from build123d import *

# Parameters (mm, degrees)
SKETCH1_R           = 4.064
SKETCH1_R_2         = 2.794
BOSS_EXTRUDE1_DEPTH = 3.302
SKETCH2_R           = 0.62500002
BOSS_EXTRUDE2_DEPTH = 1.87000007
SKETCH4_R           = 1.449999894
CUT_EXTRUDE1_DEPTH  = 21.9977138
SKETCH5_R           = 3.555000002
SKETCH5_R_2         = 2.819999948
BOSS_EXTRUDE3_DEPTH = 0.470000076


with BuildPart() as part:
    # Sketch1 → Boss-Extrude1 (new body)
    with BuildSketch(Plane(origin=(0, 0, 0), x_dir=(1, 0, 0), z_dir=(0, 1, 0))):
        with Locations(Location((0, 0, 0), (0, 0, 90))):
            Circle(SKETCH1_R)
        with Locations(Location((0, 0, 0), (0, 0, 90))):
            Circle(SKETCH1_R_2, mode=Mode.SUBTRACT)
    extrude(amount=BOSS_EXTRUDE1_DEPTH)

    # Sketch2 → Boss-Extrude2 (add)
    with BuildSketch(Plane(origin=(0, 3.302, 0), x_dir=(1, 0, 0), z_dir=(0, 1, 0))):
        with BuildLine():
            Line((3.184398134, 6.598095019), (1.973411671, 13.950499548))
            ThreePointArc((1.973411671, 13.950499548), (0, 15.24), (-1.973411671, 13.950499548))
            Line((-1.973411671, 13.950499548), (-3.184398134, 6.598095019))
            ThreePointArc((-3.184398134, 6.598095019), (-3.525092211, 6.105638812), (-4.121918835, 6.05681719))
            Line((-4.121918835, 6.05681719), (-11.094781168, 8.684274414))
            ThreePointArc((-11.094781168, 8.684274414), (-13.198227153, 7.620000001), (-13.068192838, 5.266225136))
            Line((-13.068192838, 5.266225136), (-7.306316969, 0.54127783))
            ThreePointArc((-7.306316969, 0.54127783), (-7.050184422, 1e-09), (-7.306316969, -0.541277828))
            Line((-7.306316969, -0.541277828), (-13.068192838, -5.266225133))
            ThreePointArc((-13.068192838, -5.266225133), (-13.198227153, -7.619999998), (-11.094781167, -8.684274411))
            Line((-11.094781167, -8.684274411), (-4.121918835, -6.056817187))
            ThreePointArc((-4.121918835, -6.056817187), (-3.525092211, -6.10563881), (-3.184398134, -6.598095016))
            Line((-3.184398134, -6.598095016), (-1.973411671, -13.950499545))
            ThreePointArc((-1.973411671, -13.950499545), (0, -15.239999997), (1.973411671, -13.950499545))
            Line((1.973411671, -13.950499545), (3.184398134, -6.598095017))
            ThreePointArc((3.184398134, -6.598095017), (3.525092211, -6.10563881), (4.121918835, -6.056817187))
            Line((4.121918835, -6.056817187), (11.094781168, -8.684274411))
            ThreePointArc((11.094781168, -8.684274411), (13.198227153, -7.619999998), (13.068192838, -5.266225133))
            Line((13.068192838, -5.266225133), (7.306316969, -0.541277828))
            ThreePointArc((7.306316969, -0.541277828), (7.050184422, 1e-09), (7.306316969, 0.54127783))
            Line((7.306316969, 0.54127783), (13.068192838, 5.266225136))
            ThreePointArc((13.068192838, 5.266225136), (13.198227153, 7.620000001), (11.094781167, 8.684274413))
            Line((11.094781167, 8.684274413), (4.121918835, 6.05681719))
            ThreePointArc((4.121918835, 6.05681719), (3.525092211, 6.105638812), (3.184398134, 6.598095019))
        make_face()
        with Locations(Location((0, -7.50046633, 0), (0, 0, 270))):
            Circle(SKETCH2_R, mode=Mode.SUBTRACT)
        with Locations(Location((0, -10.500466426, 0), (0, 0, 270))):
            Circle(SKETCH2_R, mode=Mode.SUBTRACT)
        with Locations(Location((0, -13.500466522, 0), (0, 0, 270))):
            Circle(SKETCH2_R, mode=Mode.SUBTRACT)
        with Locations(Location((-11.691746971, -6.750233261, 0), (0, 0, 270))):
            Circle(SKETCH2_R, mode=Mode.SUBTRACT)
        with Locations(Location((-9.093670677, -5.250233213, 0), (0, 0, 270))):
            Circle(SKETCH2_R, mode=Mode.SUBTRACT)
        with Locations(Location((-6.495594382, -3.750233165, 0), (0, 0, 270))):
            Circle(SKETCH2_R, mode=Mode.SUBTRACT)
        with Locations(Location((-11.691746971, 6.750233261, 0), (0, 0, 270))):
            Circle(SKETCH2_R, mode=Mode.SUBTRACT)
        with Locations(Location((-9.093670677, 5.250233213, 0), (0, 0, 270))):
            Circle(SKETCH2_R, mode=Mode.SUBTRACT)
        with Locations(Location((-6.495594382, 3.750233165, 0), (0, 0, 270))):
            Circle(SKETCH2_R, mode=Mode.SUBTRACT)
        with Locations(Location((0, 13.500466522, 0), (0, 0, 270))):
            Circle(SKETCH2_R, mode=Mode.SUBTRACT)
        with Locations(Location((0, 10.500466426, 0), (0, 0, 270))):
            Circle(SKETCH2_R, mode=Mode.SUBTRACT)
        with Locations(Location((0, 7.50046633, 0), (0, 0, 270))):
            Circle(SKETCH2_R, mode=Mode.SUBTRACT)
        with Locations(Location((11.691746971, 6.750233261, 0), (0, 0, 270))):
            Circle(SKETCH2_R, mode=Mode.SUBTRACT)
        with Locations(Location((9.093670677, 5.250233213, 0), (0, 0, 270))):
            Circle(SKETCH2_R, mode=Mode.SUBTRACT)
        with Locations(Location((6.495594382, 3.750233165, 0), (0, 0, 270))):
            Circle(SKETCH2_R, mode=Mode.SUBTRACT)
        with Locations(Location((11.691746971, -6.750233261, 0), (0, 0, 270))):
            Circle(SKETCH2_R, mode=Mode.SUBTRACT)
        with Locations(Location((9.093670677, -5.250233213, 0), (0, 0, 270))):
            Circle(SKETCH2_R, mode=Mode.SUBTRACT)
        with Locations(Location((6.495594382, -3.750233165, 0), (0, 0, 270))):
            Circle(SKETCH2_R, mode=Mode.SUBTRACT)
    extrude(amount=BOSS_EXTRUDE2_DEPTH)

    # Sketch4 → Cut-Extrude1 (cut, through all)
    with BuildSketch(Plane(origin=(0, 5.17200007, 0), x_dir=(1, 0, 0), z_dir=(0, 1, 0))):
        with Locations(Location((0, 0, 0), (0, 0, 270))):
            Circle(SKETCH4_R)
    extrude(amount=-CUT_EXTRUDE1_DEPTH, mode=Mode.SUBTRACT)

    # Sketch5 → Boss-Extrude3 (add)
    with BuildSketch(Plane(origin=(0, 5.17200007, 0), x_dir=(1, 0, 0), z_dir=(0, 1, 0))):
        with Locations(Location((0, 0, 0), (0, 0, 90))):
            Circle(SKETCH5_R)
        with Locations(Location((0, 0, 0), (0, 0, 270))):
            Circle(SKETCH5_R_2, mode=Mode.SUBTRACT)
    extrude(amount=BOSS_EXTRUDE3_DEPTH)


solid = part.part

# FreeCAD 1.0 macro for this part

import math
import FreeCAD as App
import Part
import Sketcher

V = App.Vector
Q = App.Units.Quantity

doc = App.newDocument("Part")
body = doc.addObject("PartDesign::Body", "Body")

# Sketch on XZ plane
sketch1 = body.newObject("Sketcher::SketchObject", "Sketch")
sketch1.AttachmentSupport = (doc.getObject("XZ_Plane"), [""])
sketch1.MapMode = "FlatFace"
sketch1.addGeometry([
    Part.Circle(V(0, 0, 0), V(0, 0, 1), 4.064),
    Part.Circle(V(0, 0, 0), V(0, 0, 1), 2.794),
], False)
sketch1.addConstraint([
    Sketcher.Constraint("Coincident", 0, 3, -1, 1),
    Sketcher.Constraint("Coincident", 1, 3, -1, 1),
    Sketcher.Constraint("Diameter", 0, Q("0.32 in")),
    Sketcher.Constraint("Diameter", 1, Q("0.22 in")),
])
pad1 = body.newObject("PartDesign::Pad", "Pad")
pad1.Profile = sketch1
pad1.Length = Q("0.13 in")
pad1.Reversed = True

# Sketch on XZ plane
sketch2 = body.newObject("Sketcher::SketchObject", "Sketch001")
sketch2.AttachmentSupport = (doc.getObject("XZ_Plane"), [""])
sketch2.MapMode = "FlatFace"
sketch2.AttachmentOffset = App.Placement(V(0, 0, -0.13 * 25.4), App.Rotation())
sketch2.addGeometry([
    Part.LineSegment(V(3.184398, -6.598095, 0), V(1.973412, -13.9505, 0)),  # 0
    Part.ArcOfCircle(Part.Circle(V(0, -13.085226, 0), V(0, 0, 1), 2.154774), math.radians(-156.324183), math.radians(-23.675817)),  # 1
    Part.LineSegment(V(-1.973412, -13.9505, 0), V(-3.184398, -6.598095, 0)),  # 2
    Part.ArcOfCircle(Part.Circle(V(-3.875092, -6.711857, 0), V(0, 0, 1), 0.7), math.radians(9.352996), math.radians(110.647004)),  # 3
    Part.LineSegment(V(-4.121919, -6.056817, 0), V(-11.094781, -8.684274, 0)),  # 4
    Part.ArcOfCircle(Part.Circle(V(-11.332138, -6.542613, 0), V(0, 0, 1), 2.154774), math.radians(143.675817), math.radians(276.324183)),  # 5
    Part.LineSegment(V(-13.068193, -5.266225, 0), V(-7.306317, -0.541278, 0)),  # 6
    Part.ArcOfCircle(Part.Circle(V(-7.750184, 0, 0), V(0, 0, 1), 0.7), math.radians(-50.647004), math.radians(50.647004)),  # 7
    Part.LineSegment(V(-7.306317, 0.541278, 0), V(-13.068193, 5.266225, 0)),  # 8
    Part.ArcOfCircle(Part.Circle(V(-11.332138, 6.542613, 0), V(0, 0, 1), 2.154774), math.radians(83.675817), math.radians(216.324183)),  # 9
    Part.LineSegment(V(-11.094781, 8.684274, 0), V(-4.121919, 6.056817, 0)),  # 10
    Part.ArcOfCircle(Part.Circle(V(-3.875092, 6.711857, 0), V(0, 0, 1), 0.7), math.radians(-110.647004), math.radians(-9.352996)),  # 11
    Part.LineSegment(V(-3.184398, 6.598095, 0), V(-1.973412, 13.9505, 0)),  # 12
    Part.ArcOfCircle(Part.Circle(V(0, 13.085226, 0), V(0, 0, 1), 2.154774), math.radians(23.675817), math.radians(156.324183)),  # 13
    Part.LineSegment(V(1.973412, 13.9505, 0), V(3.184398, 6.598095, 0)),  # 14
    Part.ArcOfCircle(Part.Circle(V(3.875092, 6.711857, 0), V(0, 0, 1), 0.7), math.radians(-170.647004), math.radians(-69.352996)),  # 15
    Part.LineSegment(V(4.121919, 6.056817, 0), V(11.094781, 8.684274, 0)),  # 16
    Part.ArcOfCircle(Part.Circle(V(11.332138, 6.542613, 0), V(0, 0, 1), 2.154774), math.radians(-36.324183), math.radians(96.324183)),  # 17
    Part.LineSegment(V(13.068193, 5.266225, 0), V(7.306317, 0.541278, 0)),  # 18
    Part.ArcOfCircle(Part.Circle(V(7.750184, 0, 0), V(0, 0, 1), 0.7), math.radians(129.352996), math.radians(230.647004)),  # 19
    Part.LineSegment(V(7.306317, -0.541278, 0), V(13.068193, -5.266225, 0)),  # 20
    Part.ArcOfCircle(Part.Circle(V(11.332138, -6.542613, 0), V(0, 0, 1), 2.154774), math.radians(-96.324183), math.radians(36.324183)),  # 21
    Part.LineSegment(V(11.094781, -8.684274, 0), V(4.121919, -6.056817, 0)),  # 22
    Part.ArcOfCircle(Part.Circle(V(3.875092, -6.711857, 0), V(0, 0, 1), 0.7), math.radians(69.352996), math.radians(170.647004)),  # 23
    Part.Circle(V(-11.691747, 6.750233, 0), V(0, 0, 1), 0.625),  # 24
    Part.Circle(V(-9.093671, 5.250233, 0), V(0, 0, 1), 0.625),  # 25
    Part.Circle(V(-6.495594, 3.750233, 0), V(0, 0, 1), 0.625),  # 26
    Part.Circle(V(0, 13.500467, 0), V(0, 0, 1), 0.625),  # 27
    Part.Circle(V(0, 10.500466, 0), V(0, 0, 1), 0.625),  # 28
    Part.Circle(V(0, 7.500466, 0), V(0, 0, 1), 0.625),  # 29
    Part.Circle(V(6.495594, 3.750233, 0), V(0, 0, 1), 0.625),  # 30
    Part.Circle(V(9.093671, 5.250233, 0), V(0, 0, 1), 0.625),  # 31
    Part.Circle(V(11.691747, 6.750233, 0), V(0, 0, 1), 0.625),  # 32
    Part.Circle(V(-11.691747, -6.750233, 0), V(0, 0, 1), 0.625),  # 33
    Part.Circle(V(-9.093671, -5.250233, 0), V(0, 0, 1), 0.625),  # 34
    Part.Circle(V(-6.495594, -3.750233, 0), V(0, 0, 1), 0.625),  # 35
    Part.Circle(V(6.495594, -3.750233, 0), V(0, 0, 1), 0.625),  # 36
    Part.Circle(V(9.093671, -5.250233, 0), V(0, 0, 1), 0.625),  # 37
    Part.Circle(V(11.691747, -6.750233, 0), V(0, 0, 1), 0.625),  # 38
    Part.Circle(V(0, -7.500466, 0), V(0, 0, 1), 0.625),  # 39
    Part.Circle(V(0, -10.500466, 0), V(0, 0, 1), 0.625),  # 40
    Part.Circle(V(0, -13.500467, 0), V(0, 0, 1), 0.625),  # 41
], False)
sketch2.addConstraint([
    Sketcher.Constraint("Coincident", 0, 2, 1, 2),
    Sketcher.Constraint("Coincident", 1, 1, 2, 1),
    Sketcher.Constraint("Coincident", 2, 2, 3, 1),
    Sketcher.Constraint("Coincident", 3, 2, 4, 1),
    Sketcher.Constraint("Coincident", 4, 2, 5, 2),
    Sketcher.Constraint("Coincident", 5, 1, 6, 1),
    Sketcher.Constraint("Coincident", 6, 2, 7, 1),
    Sketcher.Constraint("Coincident", 7, 2, 8, 1),
    Sketcher.Constraint("Coincident", 8, 2, 9, 2),
    Sketcher.Constraint("Coincident", 9, 1, 10, 1),
    Sketcher.Constraint("Coincident", 10, 2, 11, 1),
    Sketcher.Constraint("Coincident", 11, 2, 12, 1),
    Sketcher.Constraint("Coincident", 12, 2, 13, 2),
    Sketcher.Constraint("Coincident", 13, 1, 14, 1),
    Sketcher.Constraint("Coincident", 14, 2, 15, 1),
    Sketcher.Constraint("Coincident", 15, 2, 16, 1),
    Sketcher.Constraint("Coincident", 16, 2, 17, 2),
    Sketcher.Constraint("Coincident", 17, 1, 18, 1),
    Sketcher.Constraint("Coincident", 18, 2, 19, 1),
    Sketcher.Constraint("Coincident", 19, 2, 20, 1),
    Sketcher.Constraint("Coincident", 20, 2, 21, 2),
    Sketcher.Constraint("Coincident", 21, 1, 22, 1),
    Sketcher.Constraint("Coincident", 22, 2, 23, 1),
    Sketcher.Constraint("Coincident", 23, 2, 0, 1),
    Sketcher.Constraint("PointOnObject", 1, 3, -2),
    Sketcher.Constraint("PointOnObject", 7, 3, -1),
    Sketcher.Constraint("PointOnObject", 13, 3, -2),
    Sketcher.Constraint("PointOnObject", 19, 3, -1),
    Sketcher.Constraint("PointOnObject", 27, 3, -2),
    Sketcher.Constraint("PointOnObject", 28, 3, -2),
    Sketcher.Constraint("PointOnObject", 29, 3, -2),
    Sketcher.Constraint("PointOnObject", 39, 3, -2),
    Sketcher.Constraint("PointOnObject", 40, 3, -2),
    Sketcher.Constraint("PointOnObject", 41, 3, -2),
    Sketcher.Constraint("Diameter", 24, Q("1.25 mm")),
    Sketcher.Constraint("Diameter", 25, Q("1.25 mm")),
    Sketcher.Constraint("Diameter", 26, Q("1.25 mm")),
    Sketcher.Constraint("Diameter", 27, Q("1.25 mm")),
    Sketcher.Constraint("Diameter", 28, Q("1.25 mm")),
    Sketcher.Constraint("Diameter", 29, Q("1.25 mm")),
    Sketcher.Constraint("Diameter", 30, Q("1.25 mm")),
    Sketcher.Constraint("Diameter", 31, Q("1.25 mm")),
    Sketcher.Constraint("Diameter", 32, Q("1.25 mm")),
    Sketcher.Constraint("Diameter", 33, Q("1.25 mm")),
    Sketcher.Constraint("Diameter", 34, Q("1.25 mm")),
    Sketcher.Constraint("Diameter", 35, Q("1.25 mm")),
    Sketcher.Constraint("Diameter", 36, Q("1.25 mm")),
    Sketcher.Constraint("Diameter", 37, Q("1.25 mm")),
    Sketcher.Constraint("Diameter", 38, Q("1.25 mm")),
    Sketcher.Constraint("Diameter", 39, Q("1.25 mm")),
    Sketcher.Constraint("Diameter", 40, Q("1.25 mm")),
    Sketcher.Constraint("Diameter", 41, Q("1.25 mm")),
    Sketcher.Constraint("Radius", 3, Q("0.7 mm")),
    Sketcher.Constraint("Radius", 7, Q("0.7 mm")),
    Sketcher.Constraint("Radius", 11, Q("0.7 mm")),
    Sketcher.Constraint("Radius", 15, Q("0.7 mm")),
    Sketcher.Constraint("Radius", 19, Q("0.7 mm")),
    Sketcher.Constraint("Radius", 23, Q("0.7 mm")),
    Sketcher.Constraint("Radius", 1, Q("2.154774 mm")),
    Sketcher.Constraint("Radius", 5, Q("2.154774 mm")),
    Sketcher.Constraint("Radius", 9, Q("2.154774 mm")),
    Sketcher.Constraint("Radius", 13, Q("2.154774 mm")),
    Sketcher.Constraint("Radius", 17, Q("2.154774 mm")),
    Sketcher.Constraint("Radius", 21, Q("2.154774 mm")),
    Sketcher.Constraint("DistanceY", 0, 2, -1, 1, Q("13.9505 mm")),
    Sketcher.Constraint("DistanceY", 1, 1, -1, 1, Q("13.9505 mm")),
    Sketcher.Constraint("DistanceX", 2, 2, -1, 1, Q("3.184398 mm")),
    Sketcher.Constraint("DistanceX", 11, 2, -1, 1, Q("3.184398 mm")),
    Sketcher.Constraint("DistanceY", -1, 1, 12, 2, Q("13.9505 mm")),
    Sketcher.Constraint("DistanceY", -1, 1, 13, 1, Q("13.9505 mm")),
    Sketcher.Constraint("DistanceX", -1, 1, 14, 2, Q("3.184398 mm")),
    Sketcher.Constraint("DistanceX", -1, 1, 23, 2, Q("3.184398 mm")),
    Sketcher.Constraint("DistanceY", 25, 3, 24, 3, Q("1.5 mm")),
    Sketcher.Constraint("DistanceY", 26, 3, 25, 3, Q("1.5 mm")),
    Sketcher.Constraint("DistanceY", 28, 3, 27, 3, Q("3 mm")),
    Sketcher.Constraint("DistanceY", 29, 3, 28, 3, Q("3 mm")),
    Sketcher.Constraint("DistanceY", 30, 3, 31, 3, Q("1.5 mm")),
    Sketcher.Constraint("DistanceY", 31, 3, 32, 3, Q("1.5 mm")),
    Sketcher.Constraint("DistanceY", 33, 3, 34, 3, Q("1.5 mm")),
    Sketcher.Constraint("DistanceY", 34, 3, 35, 3, Q("1.5 mm")),
    Sketcher.Constraint("DistanceY", 37, 3, 36, 3, Q("1.5 mm")),
    Sketcher.Constraint("DistanceY", 38, 3, 37, 3, Q("1.5 mm")),
    Sketcher.Constraint("DistanceY", 40, 3, 39, 3, Q("3 mm")),
    Sketcher.Constraint("DistanceY", 41, 3, 40, 3, Q("3 mm")),
    Sketcher.Constraint("DistanceX", 5, 1, 35, 3, Q("6.572598 mm")),
    Sketcher.Constraint("DistanceX", 8, 2, 26, 3, Q("6.572598 mm")),
    Sketcher.Constraint("DistanceX", 30, 3, 17, 1, Q("6.572598 mm")),
    Sketcher.Constraint("DistanceX", 36, 3, 20, 2, Q("6.572598 mm")),
    Sketcher.Constraint("DistanceX", 25, 3, -1, 1, Q("9.093671 mm")),
    Sketcher.Constraint("DistanceX", -1, 1, 31, 3, Q("9.093671 mm")),
    Sketcher.Constraint("DistanceX", 34, 3, -1, 1, Q("9.093671 mm")),
    Sketcher.Constraint("DistanceX", -1, 1, 37, 3, Q("9.093671 mm")),
    Sketcher.Constraint("DistanceX", -1, 1, 0, 2, Q("1.973412 mm")),
    Sketcher.Constraint("DistanceX", 3, 2, -1, 1, Q("4.121919 mm")),
    Sketcher.Constraint("DistanceX", 4, 2, -1, 1, Q("11.094781 mm")),
    Sketcher.Constraint("DistanceX", 9, 1, -1, 1, Q("11.094781 mm")),
    Sketcher.Constraint("DistanceX", 10, 2, -1, 1, Q("4.121919 mm")),
    Sketcher.Constraint("DistanceX", 12, 2, -1, 1, Q("1.973412 mm")),
    Sketcher.Constraint("DistanceX", -1, 1, 15, 2, Q("4.121919 mm")),
    Sketcher.Constraint("DistanceX", -1, 1, 16, 2, Q("11.094781 mm")),
    Sketcher.Constraint("DistanceX", -1, 1, 21, 1, Q("11.094781 mm")),
    Sketcher.Constraint("DistanceX", -1, 1, 22, 2, Q("4.121919 mm")),
    Sketcher.Constraint("DistanceY", 1, 3, 3, 3, Q("6.373369 mm")),
    Sketcher.Constraint("DistanceY", 3, 3, 9, 3, Q("13.254469 mm")),
    Sketcher.Constraint("DistanceY", 5, 3, 11, 3, Q("13.254469 mm")),
    Sketcher.Constraint("DistanceY", 11, 3, 13, 3, Q("6.373369 mm")),
    Sketcher.Constraint("DistanceY", 15, 3, 13, 3, Q("6.373369 mm")),
    Sketcher.Constraint("DistanceX", 9, 3, 15, 3, Q("15.20723 mm")),
    Sketcher.Constraint("DistanceX", 11, 3, 17, 3, Q("15.20723 mm")),
    Sketcher.Constraint("DistanceX", 3, 3, 17, 3, Q("15.20723 mm")),
    Sketcher.Constraint("DistanceY", 3, 3, 17, 3, Q("13.254469 mm")),
    Sketcher.Constraint("DistanceY", 21, 3, 15, 3, Q("13.254469 mm")),
    Sketcher.Constraint("DistanceX", 3, 3, 21, 3, Q("15.20723 mm")),
    Sketcher.Constraint("DistanceY", 1, 3, 23, 3, Q("6.373369 mm")),
    Sketcher.Constraint("DistanceX", 24, 3, 9, 3, Q("0.359609 mm")),
    Sketcher.Constraint("DistanceY", 9, 3, 24, 3, Q("0.20762 mm")),
    Sketcher.Constraint("DistanceX", 24, 3, 5, 3, Q("0.359609 mm")),
    Sketcher.Constraint("DistanceX", 25, 3, 11, 3, Q("5.218578 mm")),
    Sketcher.Constraint("DistanceX", 7, 3, 26, 3, Q("1.25459 mm")),
    Sketcher.Constraint("DistanceY", 13, 3, 27, 3, Q("0.415241 mm")),
    Sketcher.Constraint("DistanceX", 30, 3, 19, 3, Q("1.25459 mm")),
    Sketcher.Constraint("DistanceY", 30, 3, 17, 3, Q("2.79238 mm")),
    Sketcher.Constraint("DistanceX", 15, 3, 31, 3, Q("5.218578 mm")),
    Sketcher.Constraint("DistanceX", 17, 3, 32, 3, Q("0.359609 mm")),
    Sketcher.Constraint("DistanceX", 33, 3, 5, 3, Q("0.359609 mm")),
    Sketcher.Constraint("DistanceY", 33, 3, 5, 3, Q("0.20762 mm")),
    Sketcher.Constraint("DistanceX", 7, 3, 35, 3, Q("1.25459 mm")),
    Sketcher.Constraint("DistanceX", 36, 3, 19, 3, Q("1.25459 mm")),
    Sketcher.Constraint("DistanceY", 21, 3, 36, 3, Q("2.79238 mm")),
    Sketcher.Constraint("DistanceX", 23, 3, 37, 3, Q("5.218578 mm")),
    Sketcher.Constraint("DistanceX", 21, 3, 38, 3, Q("0.359609 mm")),
    Sketcher.Constraint("DistanceY", 39, 3, 3, 3, Q("0.78861 mm")),
    Sketcher.Constraint("DistanceY", 33, 3, 5, 1, Q("1.484008 mm")),
    Sketcher.Constraint("DistanceY", 6, 2, 26, 3, Q("4.291511 mm")),
    Sketcher.Constraint("DistanceY", 35, 3, 7, 2, Q("4.291511 mm")),
    Sketcher.Constraint("DistanceY", 17, 1, 32, 3, Q("1.484008 mm")),
    Sketcher.Constraint("DistanceY", 36, 3, 18, 2, Q("4.291511 mm")),
    Sketcher.Constraint("DistanceY", 19, 2, 30, 3, Q("4.291511 mm")),
])
pad2 = body.newObject("PartDesign::Pad", "Pad001")
pad2.Profile = sketch2
pad2.Length = 1.87
pad2.Reversed = True

# Sketch on XZ plane
sketch3 = body.newObject("Sketcher::SketchObject", "Sketch002")
sketch3.AttachmentSupport = (doc.getObject("XZ_Plane"), [""])
sketch3.MapMode = "FlatFace"
sketch3.AttachmentOffset = App.Placement(V(0, 0, -5.172), App.Rotation())
sketch3.addGeometry(Part.Circle(V(0, 0, 0), V(0, 0, 1), 1.45), False)
sketch3.addConstraint([
    Sketcher.Constraint("Coincident", 0, 3, -1, 1),
    Sketcher.Constraint("Diameter", 0, Q("2.9 mm")),
])
pocket1 = body.newObject("PartDesign::Pocket", "Pocket")
pocket1.Profile = sketch3
pocket1.Type = "ThroughAll"
pocket1.Reversed = True

# Sketch on XZ plane
sketch4 = body.newObject("Sketcher::SketchObject", "Sketch003")
sketch4.AttachmentSupport = (doc.getObject("XZ_Plane"), [""])
sketch4.MapMode = "FlatFace"
sketch4.AttachmentOffset = App.Placement(V(0, 0, -5.172), App.Rotation())
sketch4.addGeometry([
    Part.Circle(V(0, 0, 0), V(0, 0, 1), 3.555),
    Part.Circle(V(0, 0, 0), V(0, 0, 1), 2.82),
], False)
sketch4.addConstraint([
    Sketcher.Constraint("Coincident", 0, 3, -1, 1),
    Sketcher.Constraint("Coincident", 1, 3, -1, 1),
    Sketcher.Constraint("Diameter", 0, Q("7.11 mm")),
    Sketcher.Constraint("Diameter", 1, Q("5.64 mm")),
])
pad3 = body.newObject("PartDesign::Pad", "Pad002")
pad3.Profile = sketch4
pad3.Length = 0.47
pad3.Reversed = True

doc.recompute()
